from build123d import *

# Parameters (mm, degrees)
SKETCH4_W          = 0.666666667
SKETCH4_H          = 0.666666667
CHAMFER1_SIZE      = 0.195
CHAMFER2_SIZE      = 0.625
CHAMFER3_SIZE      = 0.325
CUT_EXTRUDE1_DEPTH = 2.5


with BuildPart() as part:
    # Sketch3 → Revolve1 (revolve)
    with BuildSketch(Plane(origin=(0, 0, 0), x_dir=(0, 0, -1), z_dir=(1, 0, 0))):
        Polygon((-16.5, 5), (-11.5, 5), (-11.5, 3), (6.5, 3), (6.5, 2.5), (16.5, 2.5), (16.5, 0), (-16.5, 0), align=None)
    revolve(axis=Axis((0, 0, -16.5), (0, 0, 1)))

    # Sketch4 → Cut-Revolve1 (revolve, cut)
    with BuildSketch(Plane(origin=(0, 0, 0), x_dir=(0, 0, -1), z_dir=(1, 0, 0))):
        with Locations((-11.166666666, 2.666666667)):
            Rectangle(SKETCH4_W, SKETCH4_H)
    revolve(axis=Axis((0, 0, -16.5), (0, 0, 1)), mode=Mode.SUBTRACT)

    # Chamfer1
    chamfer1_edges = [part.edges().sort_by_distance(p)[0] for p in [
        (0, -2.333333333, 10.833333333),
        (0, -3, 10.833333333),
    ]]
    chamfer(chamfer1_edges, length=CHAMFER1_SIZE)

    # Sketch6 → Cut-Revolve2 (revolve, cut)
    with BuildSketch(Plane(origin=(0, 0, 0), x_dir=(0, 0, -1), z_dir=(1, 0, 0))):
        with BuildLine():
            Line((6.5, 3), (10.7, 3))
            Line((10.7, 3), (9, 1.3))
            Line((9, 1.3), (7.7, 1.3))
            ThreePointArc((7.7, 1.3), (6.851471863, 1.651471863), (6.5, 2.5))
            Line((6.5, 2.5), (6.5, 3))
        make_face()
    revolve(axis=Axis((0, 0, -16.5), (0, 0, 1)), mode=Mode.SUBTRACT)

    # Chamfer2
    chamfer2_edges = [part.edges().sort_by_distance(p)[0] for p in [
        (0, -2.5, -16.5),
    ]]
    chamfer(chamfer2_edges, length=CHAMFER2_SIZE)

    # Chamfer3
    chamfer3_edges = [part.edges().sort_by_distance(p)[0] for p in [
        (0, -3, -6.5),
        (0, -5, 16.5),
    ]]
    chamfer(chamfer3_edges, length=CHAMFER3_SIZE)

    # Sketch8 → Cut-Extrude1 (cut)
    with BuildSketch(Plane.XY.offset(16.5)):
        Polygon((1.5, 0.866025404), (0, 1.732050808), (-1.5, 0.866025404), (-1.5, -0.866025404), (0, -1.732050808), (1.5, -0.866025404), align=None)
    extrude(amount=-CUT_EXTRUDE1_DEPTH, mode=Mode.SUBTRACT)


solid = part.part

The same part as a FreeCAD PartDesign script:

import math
import FreeCAD as App
import Part
import Sketcher

V = App.Vector
Q = App.Units.Quantity


def edges_at(feature, points):
    """Names of the edges that pass closest to the given points."""
    edges = feature.Shape.Edges
    near = lambda p: min(range(len(edges)), key=lambda i: edges[i].distToShape(Part.Vertex(*p))[0])
    return sorted({f"Edge{near(p) + 1}" for p in points})

doc = App.newDocument("Part")
params = doc.addObject("Spreadsheet::Sheet", "Params")
for row, (alias, value) in enumerate([
    ("sketch1_width", "5 mm"),
    ("sketch1_width2", "2 mm"),
    ("sketch1_height", "33 mm"),
    ("sketch1_height2", "10 mm"),
    ("sketch1_width3", "2.5 mm"),
    ("revolution_angle", "360 deg"),
    ("groove_angle", "360 deg"),
    ("chamfer_size", "0.195 mm"),
    ("sketch3_radius", "1.2 mm"),
    ("sketch3_width", "0.5 mm"),
    ("sketch3_height", "4.2 mm"),
    ("groove2_angle", "360 deg"),
    ("chamfer2_size", "0.625 mm"),
    ("chamfer3_size", "0.325 mm"),
    ("pocket1_length", "2.5 mm"),
], start=1):
    params.set(f"A{row}", alias)
    params.set(f"B{row}", "=" + value)
    params.setAlias(f"B{row}", alias)

body = doc.addObject("PartDesign::Body", "Body")

# Sketch on YZ plane
sketch1 = body.newObject("Sketcher::SketchObject", "Sketch")
sketch1.AttachmentSupport = (doc.getObject("YZ_Plane"), [""])
sketch1.MapMode = "FlatFace"
sketch1.addGeometry([
    Part.LineSegment(V(5, 11.5, 0), V(5, 16.5, 0)),  # 0
    Part.LineSegment(V(5, 16.5, 0), V(0, 16.5, 0)),  # 1
    Part.LineSegment(V(0, 16.5, 0), V(0, -16.5, 0)),  # 2
    Part.LineSegment(V(0, -16.5, 0), V(2.5, -16.5, 0)),  # 3
    Part.LineSegment(V(2.5, -16.5, 0), V(2.5, -6.5, 0)),  # 4
    Part.LineSegment(V(2.5, -6.5, 0), V(3, -6.5, 0)),  # 5
    Part.LineSegment(V(3, -6.5, 0), V(3, 11.5, 0)),  # 6
    Part.LineSegment(V(3, 11.5, 0), V(5, 11.5, 0)),  # 7
], False)
sketch1.addConstraint([
    Sketcher.Constraint("Coincident", 0, 2, 1, 1),
    Sketcher.Constraint("Coincident", 1, 2, 2, 1),
    Sketcher.Constraint("Coincident", 2, 2, 3, 1),
    Sketcher.Constraint("Coincident", 3, 2, 4, 1),
    Sketcher.Constraint("Coincident", 4, 2, 5, 1),
    Sketcher.Constraint("Coincident", 5, 2, 6, 1),
    Sketcher.Constraint("Coincident", 6, 2, 7, 1),
    Sketcher.Constraint("Coincident", 7, 2, 0, 1),
    Sketcher.Constraint("Vertical", 0),
    Sketcher.Constraint("Horizontal", 1),
    Sketcher.Constraint("Vertical", 2),
    Sketcher.Constraint("Horizontal", 3),
    Sketcher.Constraint("Vertical", 4),
    Sketcher.Constraint("Horizontal", 5),
    Sketcher.Constraint("Vertical", 6),
    Sketcher.Constraint("Horizontal", 7),
    Sketcher.Constraint("Symmetric", 1, 2, 2, 2, -1, 1),
    Sketcher.Constraint("Equal", 1, 0),
    Sketcher.Constraint("DistanceX", 1, 2, 1, 1, Q("5 mm")),
    Sketcher.Constraint("DistanceX", 7, 1, 7, 2, Q("2 mm")),
    Sketcher.Constraint("DistanceY", 2, 2, 2, 1, Q("33 mm")),
    Sketcher.Constraint("DistanceY", 4, 1, 4, 2, Q("10 mm")),
    Sketcher.Constraint("DistanceX", 3, 1, 3, 2, Q("2.5 mm")),
])
sketch1.setExpression("Constraints[18]", "Params.sketch1_width")
sketch1.setExpression("Constraints[19]", "Params.sketch1_width2")
sketch1.setExpression("Constraints[20]", "Params.sketch1_height")
sketch1.setExpression("Constraints[21]", "Params.sketch1_height2")
sketch1.setExpression("Constraints[22]", "Params.sketch1_width3")
revolution = body.newObject("PartDesign::Revolution", "Revolution")
revolution.Profile = sketch1
revolution.ReferenceAxis = (sketch1, ["V_Axis"])
revolution.setExpression("Angle", "Params.revolution_angle")

# Sketch on YZ plane
sketch2 = body.newObject("Sketcher::SketchObject", "Sketch001")
sketch2.AttachmentSupport = (doc.getObject("YZ_Plane"), [""])
sketch2.MapMode = "FlatFace"
sketch2.addGeometry([
    Part.LineSegment(V(3, 11.5, 0), V(2.333333, 11.5, 0)),
    Part.LineSegment(V(2.333333, 11.5, 0), V(2.333333, 10.833333, 0)),
    Part.LineSegment(V(2.333333, 10.833333, 0), V(3, 10.833333, 0)),
    Part.LineSegment(V(3, 10.833333, 0), V(3, 11.5, 0)),
], False)
sketch2.addConstraint([
    Sketcher.Constraint("Coincident", 0, 2, 1, 1),
    Sketcher.Constraint("Coincident", 1, 2, 2, 1),
    Sketcher.Constraint("Coincident", 2, 2, 3, 1),
    Sketcher.Constraint("Coincident", 3, 2, 0, 1),
    Sketcher.Constraint("Horizontal", 0),
    Sketcher.Constraint("Vertical", 1),
    Sketcher.Constraint("Horizontal", 2),
    Sketcher.Constraint("Vertical", 3),
    Sketcher.Constraint("Equal", 2, 1),
    Sketcher.Constraint("DistanceX", -1, 1, 2, 2, Q("3 mm")),
    Sketcher.Constraint("DistanceY", -1, 1, 0, 2, Q("11.5 mm")),
    Sketcher.Constraint("DistanceX", 0, 2, 0, 1, Q("0.666667 mm")),
])
groove = body.newObject("PartDesign::Groove", "Groove")
groove.Profile = sketch2
groove.ReferenceAxis = (sketch2, ["V_Axis"])
groove.setExpression("Angle", "Params.groove_angle")
doc.recompute()

chamfer = body.newObject("PartDesign::Chamfer", "Chamfer")
chamfer.Base = (groove, edges_at(groove, [(0, -2.333, 10.833), (0, -3, 10.833)]))
chamfer.setExpression("Size", "Params.chamfer_size")

# Sketch on YZ plane
sketch3 = body.newObject("Sketcher::SketchObject", "Sketch002")
sketch3.AttachmentSupport = (doc.getObject("YZ_Plane"), [""])
sketch3.MapMode = "FlatFace"
sketch3.addGeometry([
    Part.LineSegment(V(3, -10.7, 0), V(3, -6.5, 0)),  # 0
    Part.LineSegment(V(3, -6.5, 0), V(2.5, -6.5, 0)),  # 1
    Part.ArcOfCircle(Part.Circle(V(2.5, -7.7, 0), V(0, 0, 1), 1.2), math.radians(90), math.radians(180)),  # 2
    Part.LineSegment(V(1.3, -7.7, 0), V(1.3, -9, 0)),  # 3
    Part.LineSegment(V(1.3, -9, 0), V(3, -10.7, 0)),  # 4
], False)
sketch3.addConstraint([
    Sketcher.Constraint("Coincident", 0, 2, 1, 1),
    Sketcher.Constraint("Tangent", 1, 2, 2, 1),
    Sketcher.Constraint("Tangent", 2, 2, 3, 1),
    Sketcher.Constraint("Coincident", 3, 2, 4, 1),
    Sketcher.Constraint("Coincident", 4, 2, 0, 1),
    Sketcher.Constraint("Vertical", 0),
    Sketcher.Constraint("Horizontal", 1),
    Sketcher.Constraint("Vertical", 3),
    Sketcher.Constraint("Radius", 2, Q("1.2 mm")),
    Sketcher.Constraint("Angle", 4, Q("-45 deg")),
    Sketcher.Constraint("DistanceX", 1, 2, 1, 1, Q("0.5 mm")),
    Sketcher.Constraint("DistanceY", 0, 1, 0, 2, Q("4.2 mm")),
    Sketcher.Constraint("DistanceX", -1, 1, 0, 2, Q("3 mm")),
    Sketcher.Constraint("DistanceY", 3, 2, -1, 1, Q("9 mm")),
])
sketch3.setExpression("Constraints[8]", "Params.sketch3_radius")
sketch3.setExpression("Constraints[10]", "Params.sketch3_width")
sketch3.setExpression("Constraints[11]", "Params.sketch3_height")
groove2 = body.newObject("PartDesign::Groove", "Groove001")
groove2.Profile = sketch3
groove2.ReferenceAxis = (sketch3, ["V_Axis"])
groove2.setExpression("Angle", "Params.groove2_angle")
doc.recompute()

chamfer2 = body.newObject("PartDesign::Chamfer", "Chamfer001")
chamfer2.Base = (groove2, edges_at(groove2, [(0, -2.5, -16.5)]))
chamfer2.setExpression("Size", "Params.chamfer2_size")
doc.recompute()

chamfer3 = body.newObject("PartDesign::Chamfer", "Chamfer002")
chamfer3.Base = (chamfer2, edges_at(chamfer2, [(0, -3, -6.5), (0, -5, 16.5)]))
chamfer3.setExpression("Size", "Params.chamfer3_size")

# Sketch on XY plane
sketch4 = body.newObject("Sketcher::SketchObject", "Sketch003")
sketch4.AttachmentSupport = (doc.getObject("XY_Plane"), [""])
sketch4.MapMode = "FlatFace"
sketch4.AttachmentOffset = App.Placement(V(0, 0, 16.5), App.Rotation())
sketch4.addGeometry([
    Part.LineSegment(V(1.5, 0.866025, 0), V(0, 1.732051, 0)),  # 0
    Part.LineSegment(V(0, 1.732051, 0), V(-1.5, 0.866025, 0)),  # 1
    Part.LineSegment(V(-1.5, 0.866025, 0), V(-1.5, -0.866025, 0)),  # 2
    Part.LineSegment(V(-1.5, -0.866025, 0), V(0, -1.732051, 0)),  # 3
    Part.LineSegment(V(0, -1.732051, 0), V(1.5, -0.866025, 0)),  # 4
    Part.LineSegment(V(1.5, -0.866025, 0), V(1.5, 0.866025, 0)),  # 5
], False)
sketch4.addConstraint([
    Sketcher.Constraint("Coincident", 0, 2, 1, 1),
    Sketcher.Constraint("Coincident", 1, 2, 2, 1),
    Sketcher.Constraint("Coincident", 2, 2, 3, 1),
    Sketcher.Constraint("Coincident", 3, 2, 4, 1),
    Sketcher.Constraint("Coincident", 4, 2, 5, 1),
    Sketcher.Constraint("Coincident", 5, 2, 0, 1),
    Sketcher.Constraint("Vertical", 2),
    Sketcher.Constraint("Vertical", 5),
    Sketcher.Constraint("Symmetric", 0, 2, 3, 2, -1, 1),
    Sketcher.Constraint("Symmetric", 1, 2, 4, 2, -1, 1),
    Sketcher.Constraint("PointOnObject", 0, 2, -2),
    Sketcher.Constraint("Parallel", 0, 3),
    Sketcher.Constraint("Horizontal", 2, 2, 4, 2),
    Sketcher.Constraint("Angle", 0, Q("150 deg")),
    Sketcher.Constraint("DistanceX", 2, 2, 4, 2, Q("3 mm")),
    Sketcher.Constraint("DistanceY", 2, 2, 2, 1, Q("1.732051 mm")),
])
pocket1 = body.newObject("PartDesign::Pocket", "Pocket")
pocket1.Profile = sketch4
pocket1.setExpression("Length", "Params.pocket1_length")

doc.recompute()
